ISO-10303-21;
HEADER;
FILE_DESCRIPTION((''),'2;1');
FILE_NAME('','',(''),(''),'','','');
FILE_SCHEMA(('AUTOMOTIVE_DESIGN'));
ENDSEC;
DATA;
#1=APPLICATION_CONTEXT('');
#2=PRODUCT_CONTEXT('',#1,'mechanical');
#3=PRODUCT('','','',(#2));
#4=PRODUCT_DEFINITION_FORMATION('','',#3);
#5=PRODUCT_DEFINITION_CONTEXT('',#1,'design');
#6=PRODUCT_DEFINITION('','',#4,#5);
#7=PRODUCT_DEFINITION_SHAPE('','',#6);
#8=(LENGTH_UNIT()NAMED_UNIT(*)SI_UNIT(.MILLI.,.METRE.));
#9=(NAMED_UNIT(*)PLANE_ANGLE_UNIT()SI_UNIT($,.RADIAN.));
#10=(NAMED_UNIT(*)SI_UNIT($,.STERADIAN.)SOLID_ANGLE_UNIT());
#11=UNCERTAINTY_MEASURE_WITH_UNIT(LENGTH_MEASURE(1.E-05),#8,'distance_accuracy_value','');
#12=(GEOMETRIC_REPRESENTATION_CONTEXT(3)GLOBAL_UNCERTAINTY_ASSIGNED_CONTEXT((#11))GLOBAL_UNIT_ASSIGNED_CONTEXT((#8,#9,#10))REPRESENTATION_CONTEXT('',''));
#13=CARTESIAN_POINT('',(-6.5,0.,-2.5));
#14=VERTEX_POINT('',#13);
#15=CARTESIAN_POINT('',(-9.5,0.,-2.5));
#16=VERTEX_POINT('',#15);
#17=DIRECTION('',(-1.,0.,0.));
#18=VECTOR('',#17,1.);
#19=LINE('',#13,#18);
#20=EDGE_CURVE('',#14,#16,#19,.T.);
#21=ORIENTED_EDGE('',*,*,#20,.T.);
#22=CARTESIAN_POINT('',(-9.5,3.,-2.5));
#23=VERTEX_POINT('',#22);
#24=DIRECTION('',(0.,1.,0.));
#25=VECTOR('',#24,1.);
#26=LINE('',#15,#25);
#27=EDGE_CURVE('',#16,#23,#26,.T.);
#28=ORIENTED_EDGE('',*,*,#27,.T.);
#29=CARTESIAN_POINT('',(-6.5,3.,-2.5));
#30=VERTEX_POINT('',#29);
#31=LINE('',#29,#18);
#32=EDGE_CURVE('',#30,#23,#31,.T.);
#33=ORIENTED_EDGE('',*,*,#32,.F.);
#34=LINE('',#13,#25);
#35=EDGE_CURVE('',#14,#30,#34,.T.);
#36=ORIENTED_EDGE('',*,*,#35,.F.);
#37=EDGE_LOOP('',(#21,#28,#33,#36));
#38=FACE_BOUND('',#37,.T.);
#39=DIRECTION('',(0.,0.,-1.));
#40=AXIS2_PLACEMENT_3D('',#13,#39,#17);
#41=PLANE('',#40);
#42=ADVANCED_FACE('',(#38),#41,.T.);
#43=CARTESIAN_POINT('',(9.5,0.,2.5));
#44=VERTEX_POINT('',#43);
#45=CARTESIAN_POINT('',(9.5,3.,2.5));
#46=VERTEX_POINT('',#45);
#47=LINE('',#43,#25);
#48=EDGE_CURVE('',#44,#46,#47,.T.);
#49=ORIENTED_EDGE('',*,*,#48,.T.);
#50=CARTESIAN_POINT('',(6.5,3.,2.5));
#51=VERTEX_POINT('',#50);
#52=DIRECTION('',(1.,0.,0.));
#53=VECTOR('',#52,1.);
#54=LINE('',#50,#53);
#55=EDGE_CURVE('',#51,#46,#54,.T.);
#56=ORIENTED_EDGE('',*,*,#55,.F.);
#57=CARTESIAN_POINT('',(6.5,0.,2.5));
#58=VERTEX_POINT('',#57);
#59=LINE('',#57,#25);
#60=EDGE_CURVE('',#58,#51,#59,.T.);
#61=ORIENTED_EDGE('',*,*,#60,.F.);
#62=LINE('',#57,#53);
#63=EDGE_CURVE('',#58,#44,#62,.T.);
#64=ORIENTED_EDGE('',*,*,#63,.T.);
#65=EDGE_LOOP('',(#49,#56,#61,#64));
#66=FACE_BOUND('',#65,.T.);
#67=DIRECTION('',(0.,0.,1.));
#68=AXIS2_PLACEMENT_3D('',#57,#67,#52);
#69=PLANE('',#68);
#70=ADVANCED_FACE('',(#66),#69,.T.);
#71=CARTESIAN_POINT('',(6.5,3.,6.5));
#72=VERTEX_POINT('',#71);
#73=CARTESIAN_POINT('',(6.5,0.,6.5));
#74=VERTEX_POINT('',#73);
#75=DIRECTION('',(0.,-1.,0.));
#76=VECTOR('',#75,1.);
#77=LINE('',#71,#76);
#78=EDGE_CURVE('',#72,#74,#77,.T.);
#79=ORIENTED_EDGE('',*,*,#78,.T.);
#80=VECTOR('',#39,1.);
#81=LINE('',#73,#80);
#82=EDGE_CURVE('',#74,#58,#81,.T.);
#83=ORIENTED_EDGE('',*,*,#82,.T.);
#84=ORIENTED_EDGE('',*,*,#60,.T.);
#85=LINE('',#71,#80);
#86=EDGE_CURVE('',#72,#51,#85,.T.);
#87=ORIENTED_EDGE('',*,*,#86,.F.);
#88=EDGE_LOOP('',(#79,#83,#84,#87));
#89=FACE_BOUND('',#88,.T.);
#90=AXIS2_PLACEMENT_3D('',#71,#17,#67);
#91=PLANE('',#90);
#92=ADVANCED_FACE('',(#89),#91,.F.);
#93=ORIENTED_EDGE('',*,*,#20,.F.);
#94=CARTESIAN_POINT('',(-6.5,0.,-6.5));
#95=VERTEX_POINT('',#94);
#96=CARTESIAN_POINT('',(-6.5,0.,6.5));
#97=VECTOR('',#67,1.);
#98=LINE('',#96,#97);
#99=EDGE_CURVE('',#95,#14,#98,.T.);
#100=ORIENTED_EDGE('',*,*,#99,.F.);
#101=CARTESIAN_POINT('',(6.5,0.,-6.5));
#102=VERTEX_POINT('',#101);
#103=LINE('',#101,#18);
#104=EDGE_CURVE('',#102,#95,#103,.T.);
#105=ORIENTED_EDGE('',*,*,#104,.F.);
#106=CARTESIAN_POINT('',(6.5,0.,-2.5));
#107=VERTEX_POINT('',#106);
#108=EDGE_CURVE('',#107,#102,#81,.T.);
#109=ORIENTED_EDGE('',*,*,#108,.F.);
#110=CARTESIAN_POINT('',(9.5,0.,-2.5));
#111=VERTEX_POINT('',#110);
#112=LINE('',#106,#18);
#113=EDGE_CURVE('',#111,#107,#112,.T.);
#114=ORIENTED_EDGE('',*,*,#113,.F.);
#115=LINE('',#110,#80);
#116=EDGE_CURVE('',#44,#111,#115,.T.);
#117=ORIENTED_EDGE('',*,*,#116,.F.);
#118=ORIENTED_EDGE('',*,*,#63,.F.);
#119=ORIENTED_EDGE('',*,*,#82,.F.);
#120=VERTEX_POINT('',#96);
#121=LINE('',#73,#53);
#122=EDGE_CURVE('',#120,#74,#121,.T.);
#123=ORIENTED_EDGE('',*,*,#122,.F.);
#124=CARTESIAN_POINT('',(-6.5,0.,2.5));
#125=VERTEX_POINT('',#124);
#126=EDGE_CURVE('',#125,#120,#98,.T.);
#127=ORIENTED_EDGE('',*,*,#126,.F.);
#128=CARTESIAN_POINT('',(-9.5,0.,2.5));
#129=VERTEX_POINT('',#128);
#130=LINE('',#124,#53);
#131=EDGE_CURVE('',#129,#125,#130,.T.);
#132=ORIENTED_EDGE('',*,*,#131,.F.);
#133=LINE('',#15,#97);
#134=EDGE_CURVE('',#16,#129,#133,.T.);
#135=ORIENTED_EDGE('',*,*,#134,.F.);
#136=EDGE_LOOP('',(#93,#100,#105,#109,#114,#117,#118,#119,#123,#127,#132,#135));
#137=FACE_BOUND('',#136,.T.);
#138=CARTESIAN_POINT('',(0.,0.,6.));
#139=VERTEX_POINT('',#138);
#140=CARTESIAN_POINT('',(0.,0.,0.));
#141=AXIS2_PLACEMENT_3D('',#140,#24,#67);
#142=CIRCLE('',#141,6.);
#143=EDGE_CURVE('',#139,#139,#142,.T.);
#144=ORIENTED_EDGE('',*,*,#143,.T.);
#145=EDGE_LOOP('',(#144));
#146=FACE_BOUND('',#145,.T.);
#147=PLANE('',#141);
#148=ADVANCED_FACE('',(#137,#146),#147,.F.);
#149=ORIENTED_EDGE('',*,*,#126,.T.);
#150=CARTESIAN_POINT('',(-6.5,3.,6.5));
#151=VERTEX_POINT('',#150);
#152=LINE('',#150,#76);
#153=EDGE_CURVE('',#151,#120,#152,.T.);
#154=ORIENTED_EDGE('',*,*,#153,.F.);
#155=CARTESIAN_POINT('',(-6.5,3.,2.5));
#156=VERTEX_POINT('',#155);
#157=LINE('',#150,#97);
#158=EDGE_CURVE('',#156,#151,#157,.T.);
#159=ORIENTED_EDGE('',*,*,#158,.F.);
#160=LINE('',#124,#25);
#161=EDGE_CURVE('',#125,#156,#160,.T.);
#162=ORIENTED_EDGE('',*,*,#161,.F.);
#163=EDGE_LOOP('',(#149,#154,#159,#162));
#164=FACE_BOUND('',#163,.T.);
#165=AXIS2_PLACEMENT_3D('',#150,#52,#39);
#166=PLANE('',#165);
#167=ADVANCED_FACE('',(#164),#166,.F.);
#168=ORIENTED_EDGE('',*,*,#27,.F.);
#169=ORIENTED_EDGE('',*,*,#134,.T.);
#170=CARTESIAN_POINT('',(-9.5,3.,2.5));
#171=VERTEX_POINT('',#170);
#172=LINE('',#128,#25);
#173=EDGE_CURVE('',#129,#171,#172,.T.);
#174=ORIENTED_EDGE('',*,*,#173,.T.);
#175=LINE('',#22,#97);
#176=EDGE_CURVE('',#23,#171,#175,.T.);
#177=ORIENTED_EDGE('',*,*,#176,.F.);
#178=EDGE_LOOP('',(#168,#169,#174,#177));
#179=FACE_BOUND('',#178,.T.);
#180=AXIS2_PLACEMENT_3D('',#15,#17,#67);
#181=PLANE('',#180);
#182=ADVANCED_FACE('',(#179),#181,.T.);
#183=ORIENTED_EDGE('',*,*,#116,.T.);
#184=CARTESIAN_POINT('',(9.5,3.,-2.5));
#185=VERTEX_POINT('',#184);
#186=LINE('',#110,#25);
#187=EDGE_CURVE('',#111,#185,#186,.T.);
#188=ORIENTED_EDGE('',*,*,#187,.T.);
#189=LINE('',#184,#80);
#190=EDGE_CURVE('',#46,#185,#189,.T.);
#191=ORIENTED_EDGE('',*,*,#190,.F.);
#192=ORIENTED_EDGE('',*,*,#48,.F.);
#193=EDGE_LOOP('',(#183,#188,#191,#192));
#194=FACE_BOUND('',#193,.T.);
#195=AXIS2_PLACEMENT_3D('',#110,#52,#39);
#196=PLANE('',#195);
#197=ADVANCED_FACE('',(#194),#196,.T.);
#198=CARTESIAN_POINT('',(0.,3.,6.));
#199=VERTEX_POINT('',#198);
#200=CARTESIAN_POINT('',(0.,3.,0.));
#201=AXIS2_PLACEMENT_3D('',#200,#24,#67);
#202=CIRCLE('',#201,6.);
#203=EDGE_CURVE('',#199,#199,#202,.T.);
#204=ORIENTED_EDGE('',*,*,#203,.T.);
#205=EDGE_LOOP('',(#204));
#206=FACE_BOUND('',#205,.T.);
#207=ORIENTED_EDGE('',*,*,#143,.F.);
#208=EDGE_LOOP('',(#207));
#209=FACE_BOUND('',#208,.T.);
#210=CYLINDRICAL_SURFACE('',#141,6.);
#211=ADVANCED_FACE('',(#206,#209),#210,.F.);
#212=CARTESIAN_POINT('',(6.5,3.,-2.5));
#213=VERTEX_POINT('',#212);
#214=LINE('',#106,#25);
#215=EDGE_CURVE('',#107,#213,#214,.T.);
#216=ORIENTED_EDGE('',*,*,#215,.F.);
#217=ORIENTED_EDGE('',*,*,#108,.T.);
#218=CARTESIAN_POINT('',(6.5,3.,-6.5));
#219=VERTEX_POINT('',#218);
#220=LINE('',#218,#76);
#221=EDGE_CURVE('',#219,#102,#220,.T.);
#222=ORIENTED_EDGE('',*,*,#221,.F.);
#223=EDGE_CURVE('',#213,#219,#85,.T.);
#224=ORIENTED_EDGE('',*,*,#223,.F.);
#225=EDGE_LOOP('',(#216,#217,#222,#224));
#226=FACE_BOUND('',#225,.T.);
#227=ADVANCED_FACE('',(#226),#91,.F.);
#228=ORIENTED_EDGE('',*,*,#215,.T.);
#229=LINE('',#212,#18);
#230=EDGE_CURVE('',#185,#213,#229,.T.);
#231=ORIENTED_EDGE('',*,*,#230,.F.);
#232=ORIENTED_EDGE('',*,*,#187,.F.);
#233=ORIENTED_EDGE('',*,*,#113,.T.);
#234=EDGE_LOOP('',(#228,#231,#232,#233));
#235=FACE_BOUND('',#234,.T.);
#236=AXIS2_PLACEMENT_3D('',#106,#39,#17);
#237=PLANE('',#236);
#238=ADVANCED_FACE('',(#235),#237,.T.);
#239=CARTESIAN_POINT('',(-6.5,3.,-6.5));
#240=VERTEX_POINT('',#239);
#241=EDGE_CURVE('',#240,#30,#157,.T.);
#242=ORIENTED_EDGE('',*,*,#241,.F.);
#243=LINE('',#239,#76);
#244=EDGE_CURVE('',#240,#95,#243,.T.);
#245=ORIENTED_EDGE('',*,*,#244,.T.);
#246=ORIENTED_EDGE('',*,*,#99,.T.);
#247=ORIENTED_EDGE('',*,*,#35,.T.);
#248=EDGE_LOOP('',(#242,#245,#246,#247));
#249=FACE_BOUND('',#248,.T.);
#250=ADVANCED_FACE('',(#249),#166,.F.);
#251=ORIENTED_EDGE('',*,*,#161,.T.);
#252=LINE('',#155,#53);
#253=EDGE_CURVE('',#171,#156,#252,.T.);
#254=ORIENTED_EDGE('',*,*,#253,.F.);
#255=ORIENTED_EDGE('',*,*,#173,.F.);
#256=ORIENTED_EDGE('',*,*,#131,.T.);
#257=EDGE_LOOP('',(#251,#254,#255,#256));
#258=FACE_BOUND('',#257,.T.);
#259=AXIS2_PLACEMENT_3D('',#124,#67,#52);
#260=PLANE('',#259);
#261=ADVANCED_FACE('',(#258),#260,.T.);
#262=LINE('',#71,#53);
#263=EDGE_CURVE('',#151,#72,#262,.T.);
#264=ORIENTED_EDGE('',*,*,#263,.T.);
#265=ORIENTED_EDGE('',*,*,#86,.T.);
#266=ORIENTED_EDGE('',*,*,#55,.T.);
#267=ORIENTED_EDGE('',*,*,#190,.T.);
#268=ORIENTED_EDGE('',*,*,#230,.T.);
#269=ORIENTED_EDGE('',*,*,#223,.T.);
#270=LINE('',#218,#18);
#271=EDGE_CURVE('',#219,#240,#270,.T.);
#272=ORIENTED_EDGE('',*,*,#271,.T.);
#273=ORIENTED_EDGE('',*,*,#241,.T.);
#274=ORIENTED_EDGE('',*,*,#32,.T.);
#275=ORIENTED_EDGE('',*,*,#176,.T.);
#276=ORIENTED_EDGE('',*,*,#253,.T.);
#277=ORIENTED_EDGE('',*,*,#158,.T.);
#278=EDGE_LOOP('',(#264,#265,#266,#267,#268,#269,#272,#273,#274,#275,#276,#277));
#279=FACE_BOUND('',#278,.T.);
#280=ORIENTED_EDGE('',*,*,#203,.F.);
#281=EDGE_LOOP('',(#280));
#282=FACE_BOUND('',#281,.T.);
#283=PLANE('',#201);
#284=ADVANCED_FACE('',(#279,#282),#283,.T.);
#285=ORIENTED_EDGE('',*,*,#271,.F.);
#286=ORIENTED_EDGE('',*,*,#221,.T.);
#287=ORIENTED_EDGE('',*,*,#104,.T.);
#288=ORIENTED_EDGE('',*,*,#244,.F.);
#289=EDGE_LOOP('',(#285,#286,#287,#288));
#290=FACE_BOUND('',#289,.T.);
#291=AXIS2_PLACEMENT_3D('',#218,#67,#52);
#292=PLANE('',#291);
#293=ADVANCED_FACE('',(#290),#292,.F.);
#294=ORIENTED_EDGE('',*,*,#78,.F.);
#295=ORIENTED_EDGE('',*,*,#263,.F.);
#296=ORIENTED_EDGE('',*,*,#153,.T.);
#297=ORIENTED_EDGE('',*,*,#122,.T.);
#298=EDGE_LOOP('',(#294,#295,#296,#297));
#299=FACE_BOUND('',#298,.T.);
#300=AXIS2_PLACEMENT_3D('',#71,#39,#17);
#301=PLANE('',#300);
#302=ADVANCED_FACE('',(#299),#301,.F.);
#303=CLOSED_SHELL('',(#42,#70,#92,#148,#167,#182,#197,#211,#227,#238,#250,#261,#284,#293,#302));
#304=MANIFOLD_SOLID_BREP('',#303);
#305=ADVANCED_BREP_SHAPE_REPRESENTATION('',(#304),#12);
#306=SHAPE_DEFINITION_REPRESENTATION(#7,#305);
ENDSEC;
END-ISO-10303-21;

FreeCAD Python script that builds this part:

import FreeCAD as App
import Part
import Sketcher

doc = App.newDocument("Part")
body = doc.addObject("PartDesign::Body", "Body")

# Sketch on XZ plane
sketch1 = body.newObject("Sketcher::SketchObject", "Sketch")
sketch1.AttachmentSupport = (doc.getObject("XZ_Plane"), [""])
sketch1.MapMode = "FlatFace"
sketch1.addGeometry([
    Part.LineSegment(App.Vector(-6.5, -6.5, 0), App.Vector(-6.5, 6.5, 0)),
    Part.LineSegment(App.Vector(-6.5, 6.5, 0), App.Vector(6.5, 6.5, 0)),
    Part.LineSegment(App.Vector(6.5, 6.5, 0), App.Vector(6.5, -6.5, 0)),
    Part.LineSegment(App.Vector(6.5, -6.5, 0), App.Vector(-6.5, -6.5, 0)),
], False)
sketch1.addConstraint([
    Sketcher.Constraint("Coincident", 0, 2, 1, 1),
    Sketcher.Constraint("Coincident", 1, 2, 2, 1),
    Sketcher.Constraint("Coincident", 2, 2, 3, 1),
    Sketcher.Constraint("Coincident", 3, 2, 0, 1),
    Sketcher.Constraint("Vertical", 0),
    Sketcher.Constraint("Horizontal", 1),
    Sketcher.Constraint("Vertical", 2),
    Sketcher.Constraint("Horizontal", 3),
    Sketcher.Constraint("Symmetric", 0, 2, 2, 2, -1, 1),
    Sketcher.Constraint("Equal", 3, 0),
    Sketcher.Constraint("DistanceX", 1, 1, 1, 2, 13.0),
])
pad1 = body.newObject("PartDesign::Pad", "Pad")
pad1.Profile = sketch1
pad1.Length = 3
pad1.Reversed = True

# Sketch on XZ plane
sketch2 = body.newObject("Sketcher::SketchObject", "Sketch001")
sketch2.AttachmentSupport = (doc.getObject("XZ_Plane"), [""])
sketch2.MapMode = "FlatFace"
sketch2.AttachmentOffset = App.Placement(App.Vector(0, 0, -3), App.Rotation())
sketch2.addGeometry(Part.Circle(App.Vector(0, 0, 0), App.Vector(0, 0, 1), 6), False)
sketch2.addConstraint([
    Sketcher.Constraint("Coincident", 0, 3, -1, 1),
    Sketcher.Constraint("Diameter", 0, 12.0),
])
pocket1 = body.newObject("PartDesign::Pocket", "Pocket")
pocket1.Profile = sketch2
pocket1.Length = 3
pocket1.Reversed = True

# Sketch on XZ plane
sketch3 = body.newObject("Sketcher::SketchObject", "Sketch002")
sketch3.AttachmentSupport = (doc.getObject("XZ_Plane"), [""])
sketch3.MapMode = "FlatFace"
sketch3.AttachmentOffset = App.Placement(App.Vector(0, 0, -3), App.Rotation())
sketch3.addGeometry([
    Part.LineSegment(App.Vector(-9.5, -2.5, 0), App.Vector(-9.5, 2.5, 0)),  # 0
    Part.LineSegment(App.Vector(-9.5, 2.5, 0), App.Vector(-6.5, 2.5, 0)),  # 1
    Part.LineSegment(App.Vector(-6.5, 2.5, 0), App.Vector(-6.5, -2.5, 0)),  # 2
    Part.LineSegment(App.Vector(-6.5, -2.5, 0), App.Vector(-9.5, -2.5, 0)),  # 3
    Part.LineSegment(App.Vector(6.5, -2.5, 0), App.Vector(6.5, 2.5, 0)),  # 4
    Part.LineSegment(App.Vector(6.5, 2.5, 0), App.Vector(9.5, 2.5, 0)),  # 5
    Part.LineSegment(App.Vector(9.5, 2.5, 0), App.Vector(9.5, -2.5, 0)),  # 6
    Part.LineSegment(App.Vector(9.5, -2.5, 0), App.Vector(6.5, -2.5, 0)),  # 7
], False)
sketch3.addConstraint([
    Sketcher.Constraint("Coincident", 0, 2, 1, 1),
    Sketcher.Constraint("Coincident", 1, 2, 2, 1),
    Sketcher.Constraint("Coincident", 2, 2, 3, 1),
    Sketcher.Constraint("Coincident", 3, 2, 0, 1),
    Sketcher.Constraint("Coincident", 4, 2, 5, 1),
    Sketcher.Constraint("Coincident", 5, 2, 6, 1),
    Sketcher.Constraint("Coincident", 6, 2, 7, 1),
    Sketcher.Constraint("Coincident", 7, 2, 4, 1),
    Sketcher.Constraint("Vertical", 0),
    Sketcher.Constraint("Horizontal", 1),
    Sketcher.Constraint("Vertical", 2),
    Sketcher.Constraint("Horizontal", 3),
    Sketcher.Constraint("Vertical", 4),
    Sketcher.Constraint("Horizontal", 5),
    Sketcher.Constraint("Vertical", 6),
    Sketcher.Constraint("Horizontal", 7),
    Sketcher.Constraint("Symmetric", 2, 2, 4, 2, -1, 1),
    Sketcher.Constraint("Symmetric", 0, 2, 6, 2, -1, 1),
    Sketcher.Constraint("Horizontal", 1, 2, 4, 2),
    Sketcher.Constraint("DistanceX", 1, 1, 1, 2, 3.0),
    Sketcher.Constraint("DistanceY", 0, 1, 0, 2, 5.0),
    Sketcher.Constraint("DistanceX", 1, 2, 4, 2, 13.0),
])
pad2 = body.newObject("PartDesign::Pad", "Pad001")
pad2.Profile = sketch3
pad2.Length = 3

doc.recompute()
